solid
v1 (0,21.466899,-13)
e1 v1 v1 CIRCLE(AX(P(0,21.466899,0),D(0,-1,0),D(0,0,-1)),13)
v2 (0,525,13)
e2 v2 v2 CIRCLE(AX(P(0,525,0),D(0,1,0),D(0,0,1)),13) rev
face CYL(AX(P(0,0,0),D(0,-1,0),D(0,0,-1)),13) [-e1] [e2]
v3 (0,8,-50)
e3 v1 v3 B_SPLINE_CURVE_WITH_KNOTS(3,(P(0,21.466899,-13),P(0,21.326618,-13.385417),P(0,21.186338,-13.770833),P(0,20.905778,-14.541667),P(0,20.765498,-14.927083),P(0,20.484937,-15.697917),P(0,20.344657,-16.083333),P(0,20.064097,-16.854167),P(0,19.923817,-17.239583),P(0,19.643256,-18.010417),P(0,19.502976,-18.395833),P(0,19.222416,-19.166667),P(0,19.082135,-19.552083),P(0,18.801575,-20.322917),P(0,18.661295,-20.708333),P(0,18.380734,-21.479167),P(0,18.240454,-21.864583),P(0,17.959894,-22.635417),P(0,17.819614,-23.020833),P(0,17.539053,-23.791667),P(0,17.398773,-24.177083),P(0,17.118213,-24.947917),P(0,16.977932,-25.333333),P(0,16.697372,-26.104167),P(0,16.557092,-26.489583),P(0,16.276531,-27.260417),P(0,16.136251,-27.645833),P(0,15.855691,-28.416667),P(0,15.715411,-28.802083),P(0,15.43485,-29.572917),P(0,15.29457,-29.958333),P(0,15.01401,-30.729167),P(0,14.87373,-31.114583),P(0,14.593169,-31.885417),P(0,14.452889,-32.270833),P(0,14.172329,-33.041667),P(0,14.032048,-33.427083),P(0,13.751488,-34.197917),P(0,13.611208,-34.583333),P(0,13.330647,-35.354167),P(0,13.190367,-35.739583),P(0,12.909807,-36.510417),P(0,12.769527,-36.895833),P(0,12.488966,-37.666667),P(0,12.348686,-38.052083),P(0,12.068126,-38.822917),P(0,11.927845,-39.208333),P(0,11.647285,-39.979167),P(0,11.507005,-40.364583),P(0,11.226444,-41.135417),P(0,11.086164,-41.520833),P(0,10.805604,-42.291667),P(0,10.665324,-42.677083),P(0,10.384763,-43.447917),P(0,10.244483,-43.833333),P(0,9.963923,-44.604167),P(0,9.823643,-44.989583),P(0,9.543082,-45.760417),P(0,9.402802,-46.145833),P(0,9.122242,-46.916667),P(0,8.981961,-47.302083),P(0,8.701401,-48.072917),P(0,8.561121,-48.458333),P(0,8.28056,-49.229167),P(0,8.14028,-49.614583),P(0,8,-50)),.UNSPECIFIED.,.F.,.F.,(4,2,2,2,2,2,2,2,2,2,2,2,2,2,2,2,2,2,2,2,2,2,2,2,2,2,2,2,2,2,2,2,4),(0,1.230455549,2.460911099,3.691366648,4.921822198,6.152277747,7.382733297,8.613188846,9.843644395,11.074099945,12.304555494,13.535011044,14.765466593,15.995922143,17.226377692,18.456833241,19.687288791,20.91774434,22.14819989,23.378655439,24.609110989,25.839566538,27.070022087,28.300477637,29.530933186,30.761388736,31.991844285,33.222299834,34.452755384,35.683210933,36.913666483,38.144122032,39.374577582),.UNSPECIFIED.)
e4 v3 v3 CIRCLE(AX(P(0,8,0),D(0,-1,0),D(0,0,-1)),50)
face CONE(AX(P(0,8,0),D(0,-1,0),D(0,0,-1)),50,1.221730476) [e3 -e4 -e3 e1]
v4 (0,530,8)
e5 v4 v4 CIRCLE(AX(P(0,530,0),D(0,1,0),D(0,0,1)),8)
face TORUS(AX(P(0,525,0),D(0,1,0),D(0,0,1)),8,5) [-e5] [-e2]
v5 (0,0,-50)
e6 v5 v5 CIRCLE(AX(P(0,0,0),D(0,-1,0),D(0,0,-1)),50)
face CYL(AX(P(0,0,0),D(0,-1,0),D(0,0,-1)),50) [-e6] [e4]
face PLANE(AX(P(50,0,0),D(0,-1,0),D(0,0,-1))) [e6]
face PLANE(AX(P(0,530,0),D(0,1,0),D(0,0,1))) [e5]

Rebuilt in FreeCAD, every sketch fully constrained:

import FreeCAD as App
import Part
import Sketcher
Q = App.Units.Quantity


def edges_at(feature, points):
    """Names of the edges that pass closest to the given points."""
    edges = feature.Shape.Edges
    near = lambda p: min(range(len(edges)), key=lambda i: edges[i].distToShape(Part.Vertex(*p))[0])
    return sorted({f"Edge{near(p) + 1}" for p in points})

doc = App.newDocument("Part")
body = doc.addObject("PartDesign::Body", "Body")

sketch1 = body.newObject("Sketcher::SketchObject", "Sketch")
sketch1.AttachmentSupport = (doc.getObject("XY_Plane"), [""])
sketch1.MapMode = "FlatFace"
sketch1.addGeometry(Part.LineSegment(App.Vector(0, 530, 0), App.Vector(0, 0, 0)), False)
sketch1.addGeometry(Part.LineSegment(App.Vector(0, 0, 0), App.Vector(50, 0, 0)), False)
sketch1.addGeometry(Part.LineSegment(App.Vector(50, 0, 0), App.Vector(50, 8, 0)), False)
sketch1.addGeometry(Part.LineSegment(App.Vector(50, 8, 0), App.Vector(13, 21, 0)), False)
sketch1.addGeometry(Part.LineSegment(App.Vector(13, 21, 0), App.Vector(13, 530, 0)), False)
sketch1.addGeometry(Part.LineSegment(App.Vector(13, 530, 0), App.Vector(0, 530, 0)), False)
sketch1.addConstraint(Sketcher.Constraint("Coincident", 0, 2, 1, 1))
sketch1.addConstraint(Sketcher.Constraint("Coincident", 1, 2, 2, 1))
sketch1.addConstraint(Sketcher.Constraint("Coincident", 2, 2, 3, 1))
sketch1.addConstraint(Sketcher.Constraint("Coincident", 3, 2, 4, 1))
sketch1.addConstraint(Sketcher.Constraint("Coincident", 4, 2, 5, 1))
sketch1.addConstraint(Sketcher.Constraint("Coincident", 5, 2, 0, 1))
sketch1.addConstraint(Sketcher.Constraint("Vertical", 0))
sketch1.addConstraint(Sketcher.Constraint("Horizontal", 1))
sketch1.addConstraint(Sketcher.Constraint("Vertical", 2))
sketch1.addConstraint(Sketcher.Constraint("Vertical", 4))
sketch1.addConstraint(Sketcher.Constraint("Horizontal", 5))
sketch1.addConstraint(Sketcher.Constraint("Coincident", 0, 2, -1, 1))
sketch1.addConstraint(Sketcher.Constraint("DistanceX", 1, 1, 1, 2, 50.0))
sketch1.addConstraint(Sketcher.Constraint("DistanceX", 5, 2, 5, 1, 13.0))
sketch1.addConstraint(Sketcher.Constraint("DistanceY", 0, 2, 0, 1, 530.0))
sketch1.addConstraint(Sketcher.Constraint("DistanceY", 2, 1, 2, 2, 8.0))
sketch1.addConstraint(Sketcher.Constraint("Angle", 3, Q("160 deg")))
revolution = body.newObject("PartDesign::Revolution", "Revolution")
revolution.Profile = sketch1
revolution.ReferenceAxis = (sketch1, ["V_Axis"])
revolution.Angle = 360
doc.recompute()

fillet = body.newObject("PartDesign::Fillet", "Fillet")
fillet.Base = (revolution, edges_at(revolution, [(0, 530, 13)]))
fillet.Radius = 5

doc.recompute()
